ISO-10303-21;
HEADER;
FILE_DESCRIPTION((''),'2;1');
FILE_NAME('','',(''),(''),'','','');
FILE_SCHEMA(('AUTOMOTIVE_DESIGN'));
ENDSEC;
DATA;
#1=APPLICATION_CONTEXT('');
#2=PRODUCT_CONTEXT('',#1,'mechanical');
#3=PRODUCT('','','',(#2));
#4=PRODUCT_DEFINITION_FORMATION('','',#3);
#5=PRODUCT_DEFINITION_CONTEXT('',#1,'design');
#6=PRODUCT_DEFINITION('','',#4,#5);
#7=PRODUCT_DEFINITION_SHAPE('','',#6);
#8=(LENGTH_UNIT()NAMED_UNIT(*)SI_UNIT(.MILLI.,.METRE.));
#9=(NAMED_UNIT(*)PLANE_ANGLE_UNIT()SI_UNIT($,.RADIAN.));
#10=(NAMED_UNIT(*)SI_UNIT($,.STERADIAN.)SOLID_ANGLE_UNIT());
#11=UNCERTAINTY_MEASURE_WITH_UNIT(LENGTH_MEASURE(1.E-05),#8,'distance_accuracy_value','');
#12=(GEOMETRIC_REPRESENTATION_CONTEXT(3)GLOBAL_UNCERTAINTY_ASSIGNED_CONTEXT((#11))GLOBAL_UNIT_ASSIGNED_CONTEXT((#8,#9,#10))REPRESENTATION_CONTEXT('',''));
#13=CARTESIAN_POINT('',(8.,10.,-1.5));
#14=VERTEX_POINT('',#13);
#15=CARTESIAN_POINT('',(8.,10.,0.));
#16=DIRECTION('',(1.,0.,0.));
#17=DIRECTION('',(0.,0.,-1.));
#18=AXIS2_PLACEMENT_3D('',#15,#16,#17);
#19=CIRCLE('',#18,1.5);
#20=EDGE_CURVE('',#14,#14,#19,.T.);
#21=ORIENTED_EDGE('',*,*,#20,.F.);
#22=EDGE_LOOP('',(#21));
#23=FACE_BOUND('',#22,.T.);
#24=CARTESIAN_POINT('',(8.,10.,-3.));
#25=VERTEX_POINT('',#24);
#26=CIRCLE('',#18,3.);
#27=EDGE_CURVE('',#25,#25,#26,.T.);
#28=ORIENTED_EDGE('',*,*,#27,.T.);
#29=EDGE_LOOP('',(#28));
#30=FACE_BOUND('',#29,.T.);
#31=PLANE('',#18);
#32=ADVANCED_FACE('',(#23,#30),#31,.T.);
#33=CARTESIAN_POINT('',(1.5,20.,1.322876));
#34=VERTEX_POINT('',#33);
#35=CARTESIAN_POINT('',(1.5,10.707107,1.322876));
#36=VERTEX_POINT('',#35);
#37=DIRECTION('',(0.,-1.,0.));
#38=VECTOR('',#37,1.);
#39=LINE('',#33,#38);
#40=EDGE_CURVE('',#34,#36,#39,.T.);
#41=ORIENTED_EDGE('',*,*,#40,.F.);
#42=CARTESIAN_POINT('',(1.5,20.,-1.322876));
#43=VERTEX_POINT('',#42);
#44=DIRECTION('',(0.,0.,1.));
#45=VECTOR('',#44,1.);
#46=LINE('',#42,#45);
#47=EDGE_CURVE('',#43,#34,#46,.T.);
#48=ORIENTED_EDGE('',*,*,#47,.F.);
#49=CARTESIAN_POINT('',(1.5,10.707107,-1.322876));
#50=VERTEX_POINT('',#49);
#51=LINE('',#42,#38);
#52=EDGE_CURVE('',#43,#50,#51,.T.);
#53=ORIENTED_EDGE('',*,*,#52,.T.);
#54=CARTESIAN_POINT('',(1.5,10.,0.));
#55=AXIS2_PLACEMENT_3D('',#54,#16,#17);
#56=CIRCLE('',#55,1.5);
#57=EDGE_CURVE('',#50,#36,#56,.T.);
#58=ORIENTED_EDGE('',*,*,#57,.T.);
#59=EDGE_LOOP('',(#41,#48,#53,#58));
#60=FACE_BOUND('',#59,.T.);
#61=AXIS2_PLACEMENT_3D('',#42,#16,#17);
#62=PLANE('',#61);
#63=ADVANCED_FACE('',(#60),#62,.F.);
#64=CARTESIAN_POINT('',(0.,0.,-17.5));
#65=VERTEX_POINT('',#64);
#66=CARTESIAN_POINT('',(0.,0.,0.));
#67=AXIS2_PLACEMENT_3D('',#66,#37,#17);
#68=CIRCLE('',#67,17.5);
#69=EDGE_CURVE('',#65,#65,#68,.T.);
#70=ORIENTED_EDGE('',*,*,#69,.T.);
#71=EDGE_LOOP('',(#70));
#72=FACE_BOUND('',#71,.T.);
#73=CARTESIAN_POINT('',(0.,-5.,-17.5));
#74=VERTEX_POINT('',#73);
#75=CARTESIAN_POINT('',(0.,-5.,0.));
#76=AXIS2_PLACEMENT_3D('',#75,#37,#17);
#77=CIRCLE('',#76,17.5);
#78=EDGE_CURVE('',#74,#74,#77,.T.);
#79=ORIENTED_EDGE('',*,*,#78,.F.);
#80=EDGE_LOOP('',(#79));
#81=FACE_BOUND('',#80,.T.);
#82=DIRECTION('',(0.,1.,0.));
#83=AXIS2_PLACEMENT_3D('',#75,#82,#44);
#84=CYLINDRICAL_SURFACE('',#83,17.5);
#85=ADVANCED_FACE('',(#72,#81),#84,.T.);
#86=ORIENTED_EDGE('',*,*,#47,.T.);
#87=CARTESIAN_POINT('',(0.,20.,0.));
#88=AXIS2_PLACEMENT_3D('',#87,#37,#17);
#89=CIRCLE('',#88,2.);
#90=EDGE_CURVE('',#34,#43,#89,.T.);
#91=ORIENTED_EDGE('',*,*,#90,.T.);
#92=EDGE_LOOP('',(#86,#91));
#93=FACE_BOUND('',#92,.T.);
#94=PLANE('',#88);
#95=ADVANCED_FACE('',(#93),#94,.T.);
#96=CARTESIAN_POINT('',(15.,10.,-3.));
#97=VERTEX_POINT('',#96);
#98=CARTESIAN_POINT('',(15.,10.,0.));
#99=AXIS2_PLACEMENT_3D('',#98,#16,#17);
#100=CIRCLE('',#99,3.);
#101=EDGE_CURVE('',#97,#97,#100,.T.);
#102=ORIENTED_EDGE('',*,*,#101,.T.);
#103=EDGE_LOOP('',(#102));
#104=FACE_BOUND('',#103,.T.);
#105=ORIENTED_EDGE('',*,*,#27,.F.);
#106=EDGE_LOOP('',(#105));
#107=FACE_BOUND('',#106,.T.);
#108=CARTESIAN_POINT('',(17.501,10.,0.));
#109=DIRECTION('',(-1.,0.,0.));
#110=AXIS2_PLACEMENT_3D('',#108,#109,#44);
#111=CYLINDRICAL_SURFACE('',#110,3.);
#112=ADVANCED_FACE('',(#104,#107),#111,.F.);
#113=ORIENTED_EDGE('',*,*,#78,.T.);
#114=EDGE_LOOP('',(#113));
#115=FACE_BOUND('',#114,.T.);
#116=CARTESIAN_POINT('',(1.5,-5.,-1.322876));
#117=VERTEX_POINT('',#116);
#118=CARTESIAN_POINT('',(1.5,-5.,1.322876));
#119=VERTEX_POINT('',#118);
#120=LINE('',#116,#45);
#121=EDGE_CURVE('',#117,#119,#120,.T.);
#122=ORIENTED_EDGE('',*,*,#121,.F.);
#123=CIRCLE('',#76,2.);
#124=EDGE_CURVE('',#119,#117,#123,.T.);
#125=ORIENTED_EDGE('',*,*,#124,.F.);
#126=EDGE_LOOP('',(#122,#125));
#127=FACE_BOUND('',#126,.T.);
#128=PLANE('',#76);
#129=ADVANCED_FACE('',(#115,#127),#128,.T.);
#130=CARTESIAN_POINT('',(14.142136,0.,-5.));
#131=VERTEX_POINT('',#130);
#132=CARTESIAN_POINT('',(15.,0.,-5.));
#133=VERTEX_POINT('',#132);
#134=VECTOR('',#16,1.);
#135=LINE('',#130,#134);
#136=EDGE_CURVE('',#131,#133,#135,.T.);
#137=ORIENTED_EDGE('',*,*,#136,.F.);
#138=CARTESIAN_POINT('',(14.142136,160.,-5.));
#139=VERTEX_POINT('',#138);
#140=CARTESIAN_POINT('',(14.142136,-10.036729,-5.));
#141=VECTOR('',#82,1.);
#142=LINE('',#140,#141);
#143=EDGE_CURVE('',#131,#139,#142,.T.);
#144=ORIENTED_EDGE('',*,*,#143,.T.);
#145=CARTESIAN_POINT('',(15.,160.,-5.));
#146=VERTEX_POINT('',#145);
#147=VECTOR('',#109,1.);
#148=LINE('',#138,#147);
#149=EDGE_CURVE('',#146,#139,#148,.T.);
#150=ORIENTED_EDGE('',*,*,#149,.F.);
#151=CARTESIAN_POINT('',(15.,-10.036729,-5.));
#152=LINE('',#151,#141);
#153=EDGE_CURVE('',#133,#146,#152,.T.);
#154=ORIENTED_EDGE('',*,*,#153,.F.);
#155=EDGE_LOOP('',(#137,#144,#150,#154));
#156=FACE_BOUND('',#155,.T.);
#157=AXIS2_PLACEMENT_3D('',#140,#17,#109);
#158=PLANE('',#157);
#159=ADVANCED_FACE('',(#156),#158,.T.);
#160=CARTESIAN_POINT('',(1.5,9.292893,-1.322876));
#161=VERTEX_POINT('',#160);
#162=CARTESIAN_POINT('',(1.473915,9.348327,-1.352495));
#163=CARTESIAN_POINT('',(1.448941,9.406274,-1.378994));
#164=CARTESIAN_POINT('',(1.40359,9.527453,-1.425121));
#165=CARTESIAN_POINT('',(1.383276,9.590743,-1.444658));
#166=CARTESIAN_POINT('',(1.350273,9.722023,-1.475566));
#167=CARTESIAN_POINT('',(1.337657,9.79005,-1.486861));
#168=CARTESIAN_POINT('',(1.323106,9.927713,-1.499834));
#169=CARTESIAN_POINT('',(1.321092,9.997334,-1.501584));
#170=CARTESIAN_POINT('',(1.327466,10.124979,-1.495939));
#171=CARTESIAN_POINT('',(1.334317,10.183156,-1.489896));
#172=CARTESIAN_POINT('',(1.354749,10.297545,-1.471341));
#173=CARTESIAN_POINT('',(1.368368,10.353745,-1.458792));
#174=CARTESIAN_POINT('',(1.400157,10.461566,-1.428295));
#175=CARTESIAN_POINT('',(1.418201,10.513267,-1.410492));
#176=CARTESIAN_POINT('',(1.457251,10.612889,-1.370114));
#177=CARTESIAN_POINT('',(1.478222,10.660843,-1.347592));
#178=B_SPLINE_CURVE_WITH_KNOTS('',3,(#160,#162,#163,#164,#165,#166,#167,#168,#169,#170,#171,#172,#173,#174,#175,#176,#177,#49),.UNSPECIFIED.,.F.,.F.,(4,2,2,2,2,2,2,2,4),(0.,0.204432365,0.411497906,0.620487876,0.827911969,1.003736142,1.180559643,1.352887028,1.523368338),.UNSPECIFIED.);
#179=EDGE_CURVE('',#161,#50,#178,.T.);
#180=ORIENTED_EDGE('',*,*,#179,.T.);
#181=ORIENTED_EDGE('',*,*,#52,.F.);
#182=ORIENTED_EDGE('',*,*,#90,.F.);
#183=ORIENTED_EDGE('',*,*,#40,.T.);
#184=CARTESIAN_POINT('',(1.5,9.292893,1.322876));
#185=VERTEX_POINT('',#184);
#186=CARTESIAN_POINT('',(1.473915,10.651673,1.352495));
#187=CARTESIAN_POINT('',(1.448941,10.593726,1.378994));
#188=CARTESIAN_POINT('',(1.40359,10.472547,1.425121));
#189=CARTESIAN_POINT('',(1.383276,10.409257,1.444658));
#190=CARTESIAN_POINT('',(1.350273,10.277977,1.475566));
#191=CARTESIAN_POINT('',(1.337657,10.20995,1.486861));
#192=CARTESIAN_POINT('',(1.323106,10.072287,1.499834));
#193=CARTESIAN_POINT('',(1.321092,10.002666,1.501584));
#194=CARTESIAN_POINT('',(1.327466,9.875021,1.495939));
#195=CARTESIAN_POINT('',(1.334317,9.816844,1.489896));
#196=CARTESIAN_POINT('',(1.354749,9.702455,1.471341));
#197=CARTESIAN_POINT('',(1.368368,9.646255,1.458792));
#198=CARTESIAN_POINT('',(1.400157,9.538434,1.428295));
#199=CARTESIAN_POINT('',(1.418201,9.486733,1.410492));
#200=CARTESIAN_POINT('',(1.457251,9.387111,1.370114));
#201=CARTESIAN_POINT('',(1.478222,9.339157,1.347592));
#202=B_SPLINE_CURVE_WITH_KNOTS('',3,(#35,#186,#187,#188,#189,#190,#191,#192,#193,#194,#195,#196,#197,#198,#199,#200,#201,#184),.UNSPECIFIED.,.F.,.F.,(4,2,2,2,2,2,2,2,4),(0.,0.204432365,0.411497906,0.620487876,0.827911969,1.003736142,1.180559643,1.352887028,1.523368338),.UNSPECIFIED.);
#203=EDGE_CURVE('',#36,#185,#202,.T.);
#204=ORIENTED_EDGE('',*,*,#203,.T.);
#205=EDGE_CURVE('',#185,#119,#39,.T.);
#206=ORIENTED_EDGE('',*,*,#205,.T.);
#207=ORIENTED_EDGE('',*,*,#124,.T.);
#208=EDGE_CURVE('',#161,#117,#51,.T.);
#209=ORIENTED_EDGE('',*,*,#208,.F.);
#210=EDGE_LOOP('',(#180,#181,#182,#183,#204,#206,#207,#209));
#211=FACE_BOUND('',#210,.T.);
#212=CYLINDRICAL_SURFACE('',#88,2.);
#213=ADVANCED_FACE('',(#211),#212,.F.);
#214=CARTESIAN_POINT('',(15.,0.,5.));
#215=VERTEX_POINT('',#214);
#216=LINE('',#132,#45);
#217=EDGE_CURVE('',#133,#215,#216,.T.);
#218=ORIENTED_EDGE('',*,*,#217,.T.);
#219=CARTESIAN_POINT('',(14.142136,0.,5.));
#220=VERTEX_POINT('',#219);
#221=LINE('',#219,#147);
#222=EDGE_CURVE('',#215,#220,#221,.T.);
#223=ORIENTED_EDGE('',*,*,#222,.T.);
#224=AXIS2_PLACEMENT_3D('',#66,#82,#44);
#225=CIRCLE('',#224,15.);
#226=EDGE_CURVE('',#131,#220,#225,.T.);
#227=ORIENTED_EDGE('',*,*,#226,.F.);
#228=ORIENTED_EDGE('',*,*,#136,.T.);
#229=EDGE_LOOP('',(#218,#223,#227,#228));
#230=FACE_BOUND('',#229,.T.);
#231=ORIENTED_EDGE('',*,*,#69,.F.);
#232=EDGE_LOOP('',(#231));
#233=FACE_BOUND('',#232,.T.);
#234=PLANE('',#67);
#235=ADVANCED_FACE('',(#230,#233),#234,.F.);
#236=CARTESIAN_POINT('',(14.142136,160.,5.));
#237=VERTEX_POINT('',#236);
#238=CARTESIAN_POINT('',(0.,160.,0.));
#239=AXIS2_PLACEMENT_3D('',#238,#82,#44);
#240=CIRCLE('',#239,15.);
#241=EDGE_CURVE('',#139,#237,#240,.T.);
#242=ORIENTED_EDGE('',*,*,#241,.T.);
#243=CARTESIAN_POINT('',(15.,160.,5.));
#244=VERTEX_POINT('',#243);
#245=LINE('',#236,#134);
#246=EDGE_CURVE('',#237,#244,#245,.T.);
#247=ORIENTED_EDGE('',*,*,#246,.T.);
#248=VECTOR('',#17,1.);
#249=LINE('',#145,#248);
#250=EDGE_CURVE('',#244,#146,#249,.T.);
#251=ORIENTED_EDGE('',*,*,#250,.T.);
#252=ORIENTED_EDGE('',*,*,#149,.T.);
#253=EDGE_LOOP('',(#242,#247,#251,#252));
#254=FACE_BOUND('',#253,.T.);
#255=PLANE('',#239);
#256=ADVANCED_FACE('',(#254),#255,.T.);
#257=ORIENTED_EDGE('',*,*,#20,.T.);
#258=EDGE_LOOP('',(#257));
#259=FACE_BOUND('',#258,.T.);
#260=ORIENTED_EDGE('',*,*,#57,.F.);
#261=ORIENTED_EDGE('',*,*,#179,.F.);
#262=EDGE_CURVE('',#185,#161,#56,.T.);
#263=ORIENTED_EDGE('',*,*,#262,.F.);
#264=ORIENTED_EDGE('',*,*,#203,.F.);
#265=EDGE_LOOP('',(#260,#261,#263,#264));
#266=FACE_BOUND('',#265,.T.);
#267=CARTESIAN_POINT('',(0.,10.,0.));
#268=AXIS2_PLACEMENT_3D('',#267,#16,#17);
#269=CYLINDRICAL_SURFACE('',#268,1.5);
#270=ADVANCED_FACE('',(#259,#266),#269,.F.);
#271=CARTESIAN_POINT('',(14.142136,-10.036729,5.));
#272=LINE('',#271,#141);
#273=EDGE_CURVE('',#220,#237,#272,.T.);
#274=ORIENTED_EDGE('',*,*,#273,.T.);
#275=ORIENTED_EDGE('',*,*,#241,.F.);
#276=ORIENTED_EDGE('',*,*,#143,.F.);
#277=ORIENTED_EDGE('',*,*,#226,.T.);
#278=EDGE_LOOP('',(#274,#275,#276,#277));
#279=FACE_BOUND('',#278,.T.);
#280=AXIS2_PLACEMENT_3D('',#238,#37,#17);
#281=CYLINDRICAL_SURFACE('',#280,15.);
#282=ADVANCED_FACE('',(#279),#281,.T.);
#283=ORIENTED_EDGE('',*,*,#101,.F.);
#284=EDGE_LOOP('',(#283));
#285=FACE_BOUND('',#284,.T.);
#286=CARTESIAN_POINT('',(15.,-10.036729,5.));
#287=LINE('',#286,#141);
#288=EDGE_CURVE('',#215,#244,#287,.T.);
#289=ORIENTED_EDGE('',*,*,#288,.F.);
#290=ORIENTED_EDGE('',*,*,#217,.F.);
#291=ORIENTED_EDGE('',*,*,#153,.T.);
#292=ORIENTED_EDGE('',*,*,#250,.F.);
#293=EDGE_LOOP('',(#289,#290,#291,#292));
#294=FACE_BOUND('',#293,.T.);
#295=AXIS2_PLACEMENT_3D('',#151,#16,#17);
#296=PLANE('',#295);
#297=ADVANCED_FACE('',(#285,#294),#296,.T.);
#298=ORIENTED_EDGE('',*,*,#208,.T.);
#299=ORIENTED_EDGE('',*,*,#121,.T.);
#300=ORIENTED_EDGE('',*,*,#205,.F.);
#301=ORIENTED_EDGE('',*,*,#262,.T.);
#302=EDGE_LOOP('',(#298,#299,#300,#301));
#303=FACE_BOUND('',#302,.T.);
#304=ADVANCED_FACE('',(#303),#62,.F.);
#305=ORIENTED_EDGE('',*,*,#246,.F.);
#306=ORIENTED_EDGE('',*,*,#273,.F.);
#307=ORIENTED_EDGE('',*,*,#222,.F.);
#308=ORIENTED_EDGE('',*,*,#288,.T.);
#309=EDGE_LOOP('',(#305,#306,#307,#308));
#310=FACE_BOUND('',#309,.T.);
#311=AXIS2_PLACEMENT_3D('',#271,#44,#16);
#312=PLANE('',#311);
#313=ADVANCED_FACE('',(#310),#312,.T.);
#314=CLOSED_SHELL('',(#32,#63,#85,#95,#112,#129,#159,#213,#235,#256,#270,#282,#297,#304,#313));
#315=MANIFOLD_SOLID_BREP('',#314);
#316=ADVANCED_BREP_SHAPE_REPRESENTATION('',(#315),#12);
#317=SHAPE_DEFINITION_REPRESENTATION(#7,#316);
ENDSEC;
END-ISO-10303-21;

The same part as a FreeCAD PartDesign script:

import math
import FreeCAD as App
import Part
import Sketcher

V = App.Vector

doc = App.newDocument("Part")
params = doc.addObject("Spreadsheet::Sheet", "Params")
for row, (alias, value) in enumerate([
    ("sketch1_diameter", "30 mm"),
    ("pad1_length", "160 mm"),
    ("sketch2_height", "10 mm"),
    ("pad2_length", "160 mm"),
    ("sketch3_diameter", "35 mm"),
    ("pad3_length", "5 mm"),
    ("sketch4_radius", "2 mm"),
    ("pocket1_length", "25 mm"),
    ("sketch5_diameter", "3 mm"),
    ("pocket2_length", "15 mm"),
    ("sketch6_diameter", "6 mm"),
    ("pocket3_length", "7 mm"),
], start=1):
    params.set(f"A{row}", alias)
    params.set(f"B{row}", "=" + value)
    params.setAlias(f"B{row}", alias)

body = doc.addObject("PartDesign::Body", "Body")

# Sketch on XZ plane
sketch1 = body.newObject("Sketcher::SketchObject", "Sketch")
sketch1.AttachmentSupport = (doc.getObject("XZ_Plane"), [""])
sketch1.MapMode = "FlatFace"
sketch1.addGeometry(Part.Circle(V(0, 0, 0), V(0, 0, 1), 15), False)
sketch1.addConstraint([
    Sketcher.Constraint("Coincident", 0, 3, -1, 1),
    Sketcher.Constraint("Diameter", 0, 30.0),
])
sketch1.setExpression("Constraints[1]", "Params.sketch1_diameter")
pad1 = body.newObject("PartDesign::Pad", "Pad")
pad1.Profile = sketch1
pad1.setExpression("Length", "Params.pad1_length")
pad1.Reversed = True

# Sketch on XZ plane
sketch2 = body.newObject("Sketcher::SketchObject", "Sketch001")
sketch2.AttachmentSupport = (doc.getObject("XZ_Plane"), [""])
sketch2.MapMode = "FlatFace"
sketch2.AttachmentOffset = App.Placement(V(0, 0, -160), App.Rotation())
sketch2.addGeometry([
    Part.LineSegment(V(14.1, -5, 0), V(14.1, 5, 0)),
    Part.LineSegment(V(14.1, 5, 0), V(15, 5, 0)),
    Part.LineSegment(V(15, 5, 0), V(15, -5, 0)),
    Part.LineSegment(V(15, -5, 0), V(14.1, -5, 0)),
], False)
sketch2.addConstraint([
    Sketcher.Constraint("Coincident", 0, 2, 1, 1),
    Sketcher.Constraint("Coincident", 1, 2, 2, 1),
    Sketcher.Constraint("Coincident", 2, 2, 3, 1),
    Sketcher.Constraint("Coincident", 3, 2, 0, 1),
    Sketcher.Constraint("Vertical", 0),
    Sketcher.Constraint("Horizontal", 1),
    Sketcher.Constraint("Vertical", 2),
    Sketcher.Constraint("Horizontal", 3),
    Sketcher.Constraint("DistanceY", 0, 1, 0, 2, 10.0),
    Sketcher.Constraint("DistanceY", -1, 1, 0, 2, 5.0),
    Sketcher.Constraint("DistanceX", -1, 1, 1, 2, 15.0),
    Sketcher.Constraint("DistanceX", 1, 1, 1, 2, 0.857864),
])
sketch2.setExpression("Constraints[8]", "Params.sketch2_height")
pad2 = body.newObject("PartDesign::Pad", "Pad001")
pad2.Profile = sketch2
pad2.setExpression("Length", "Params.pad2_length")

# Sketch on XZ plane
sketch3 = body.newObject("Sketcher::SketchObject", "Sketch002")
sketch3.AttachmentSupport = (doc.getObject("XZ_Plane"), [""])
sketch3.MapMode = "FlatFace"
sketch3.addGeometry(Part.Circle(V(0, 0, 0), V(0, 0, 1), 18), False)
sketch3.addConstraint([
    Sketcher.Constraint("Coincident", 0, 3, -1, 1),
    Sketcher.Constraint("Diameter", 0, 35.0),
])
sketch3.setExpression("Constraints[1]", "Params.sketch3_diameter")
pad3 = body.newObject("PartDesign::Pad", "Pad002")
pad3.Profile = sketch3
pad3.setExpression("Length", "Params.pad3_length")

# Sketch on XZ plane
sketch4 = body.newObject("Sketcher::SketchObject", "Sketch003")
sketch4.AttachmentSupport = (doc.getObject("XZ_Plane"), [""])
sketch4.MapMode = "FlatFace"
sketch4.AttachmentOffset = App.Placement(V(0, 0, 5), App.Rotation())
sketch4.addGeometry([
    Part.LineSegment(V(1.5, -1.3, 0), V(1.5, 1.3, 0)),
    Part.ArcOfCircle(Part.Circle(V(0, 0, 0), V(0, 0, 1), 2), math.radians(41), math.radians(319)),
], False)
sketch4.addConstraint([
    Sketcher.Constraint("Coincident", 0, 1, 1, 2),
    Sketcher.Constraint("Coincident", 1, 1, 0, 2),
    Sketcher.Constraint("Vertical", 0),
    Sketcher.Constraint("Coincident", 1, 3, -1, 1),
    Sketcher.Constraint("Radius", 1, 2.0),
    Sketcher.Constraint("DistanceX", -1, 1, 0, 1, 1.5),
])
sketch4.setExpression("Constraints[4]", "Params.sketch4_radius")
pocket1 = body.newObject("PartDesign::Pocket", "Pocket")
pocket1.Profile = sketch4
pocket1.setExpression("Length", "Params.pocket1_length")

# Sketch on YZ plane
sketch5 = body.newObject("Sketcher::SketchObject", "Sketch004")
sketch5.AttachmentSupport = (doc.getObject("YZ_Plane"), [""])
sketch5.MapMode = "FlatFace"
sketch5.AttachmentOffset = App.Placement(V(0, 0, 15), App.Rotation())
sketch5.addGeometry(Part.Circle(V(10, 0, 0), V(0, 0, 1), 1.5), False)
sketch5.addConstraint([
    Sketcher.Constraint("PointOnObject", 0, 3, -1),
    Sketcher.Constraint("Diameter", 0, 3.0),
    Sketcher.Constraint("DistanceX", -1, 1, 0, 3, 10.0),
])
sketch5.setExpression("Constraints[1]", "Params.sketch5_diameter")
pocket2 = body.newObject("PartDesign::Pocket", "Pocket001")
pocket2.Profile = sketch5
pocket2.setExpression("Length", "Params.pocket2_length")

# Sketch on YZ plane
sketch6 = body.newObject("Sketcher::SketchObject", "Sketch005")
sketch6.AttachmentSupport = (doc.getObject("YZ_Plane"), [""])
sketch6.MapMode = "FlatFace"
sketch6.AttachmentOffset = App.Placement(V(0, 0, 8), App.Rotation())
sketch6.addGeometry(Part.Circle(V(10, 0, 0), V(0, 0, 1), 3), False)
sketch6.addConstraint([
    Sketcher.Constraint("PointOnObject", 0, 3, -1),
    Sketcher.Constraint("Diameter", 0, 6.0),
    Sketcher.Constraint("DistanceX", -1, 1, 0, 3, 10.0),
])
sketch6.setExpression("Constraints[1]", "Params.sketch6_diameter")
pocket3 = body.newObject("PartDesign::Pocket", "Pocket002")
pocket3.Profile = sketch6
pocket3.setExpression("Length", "Params.pocket3_length")
pocket3.Reversed = True

doc.recompute()
